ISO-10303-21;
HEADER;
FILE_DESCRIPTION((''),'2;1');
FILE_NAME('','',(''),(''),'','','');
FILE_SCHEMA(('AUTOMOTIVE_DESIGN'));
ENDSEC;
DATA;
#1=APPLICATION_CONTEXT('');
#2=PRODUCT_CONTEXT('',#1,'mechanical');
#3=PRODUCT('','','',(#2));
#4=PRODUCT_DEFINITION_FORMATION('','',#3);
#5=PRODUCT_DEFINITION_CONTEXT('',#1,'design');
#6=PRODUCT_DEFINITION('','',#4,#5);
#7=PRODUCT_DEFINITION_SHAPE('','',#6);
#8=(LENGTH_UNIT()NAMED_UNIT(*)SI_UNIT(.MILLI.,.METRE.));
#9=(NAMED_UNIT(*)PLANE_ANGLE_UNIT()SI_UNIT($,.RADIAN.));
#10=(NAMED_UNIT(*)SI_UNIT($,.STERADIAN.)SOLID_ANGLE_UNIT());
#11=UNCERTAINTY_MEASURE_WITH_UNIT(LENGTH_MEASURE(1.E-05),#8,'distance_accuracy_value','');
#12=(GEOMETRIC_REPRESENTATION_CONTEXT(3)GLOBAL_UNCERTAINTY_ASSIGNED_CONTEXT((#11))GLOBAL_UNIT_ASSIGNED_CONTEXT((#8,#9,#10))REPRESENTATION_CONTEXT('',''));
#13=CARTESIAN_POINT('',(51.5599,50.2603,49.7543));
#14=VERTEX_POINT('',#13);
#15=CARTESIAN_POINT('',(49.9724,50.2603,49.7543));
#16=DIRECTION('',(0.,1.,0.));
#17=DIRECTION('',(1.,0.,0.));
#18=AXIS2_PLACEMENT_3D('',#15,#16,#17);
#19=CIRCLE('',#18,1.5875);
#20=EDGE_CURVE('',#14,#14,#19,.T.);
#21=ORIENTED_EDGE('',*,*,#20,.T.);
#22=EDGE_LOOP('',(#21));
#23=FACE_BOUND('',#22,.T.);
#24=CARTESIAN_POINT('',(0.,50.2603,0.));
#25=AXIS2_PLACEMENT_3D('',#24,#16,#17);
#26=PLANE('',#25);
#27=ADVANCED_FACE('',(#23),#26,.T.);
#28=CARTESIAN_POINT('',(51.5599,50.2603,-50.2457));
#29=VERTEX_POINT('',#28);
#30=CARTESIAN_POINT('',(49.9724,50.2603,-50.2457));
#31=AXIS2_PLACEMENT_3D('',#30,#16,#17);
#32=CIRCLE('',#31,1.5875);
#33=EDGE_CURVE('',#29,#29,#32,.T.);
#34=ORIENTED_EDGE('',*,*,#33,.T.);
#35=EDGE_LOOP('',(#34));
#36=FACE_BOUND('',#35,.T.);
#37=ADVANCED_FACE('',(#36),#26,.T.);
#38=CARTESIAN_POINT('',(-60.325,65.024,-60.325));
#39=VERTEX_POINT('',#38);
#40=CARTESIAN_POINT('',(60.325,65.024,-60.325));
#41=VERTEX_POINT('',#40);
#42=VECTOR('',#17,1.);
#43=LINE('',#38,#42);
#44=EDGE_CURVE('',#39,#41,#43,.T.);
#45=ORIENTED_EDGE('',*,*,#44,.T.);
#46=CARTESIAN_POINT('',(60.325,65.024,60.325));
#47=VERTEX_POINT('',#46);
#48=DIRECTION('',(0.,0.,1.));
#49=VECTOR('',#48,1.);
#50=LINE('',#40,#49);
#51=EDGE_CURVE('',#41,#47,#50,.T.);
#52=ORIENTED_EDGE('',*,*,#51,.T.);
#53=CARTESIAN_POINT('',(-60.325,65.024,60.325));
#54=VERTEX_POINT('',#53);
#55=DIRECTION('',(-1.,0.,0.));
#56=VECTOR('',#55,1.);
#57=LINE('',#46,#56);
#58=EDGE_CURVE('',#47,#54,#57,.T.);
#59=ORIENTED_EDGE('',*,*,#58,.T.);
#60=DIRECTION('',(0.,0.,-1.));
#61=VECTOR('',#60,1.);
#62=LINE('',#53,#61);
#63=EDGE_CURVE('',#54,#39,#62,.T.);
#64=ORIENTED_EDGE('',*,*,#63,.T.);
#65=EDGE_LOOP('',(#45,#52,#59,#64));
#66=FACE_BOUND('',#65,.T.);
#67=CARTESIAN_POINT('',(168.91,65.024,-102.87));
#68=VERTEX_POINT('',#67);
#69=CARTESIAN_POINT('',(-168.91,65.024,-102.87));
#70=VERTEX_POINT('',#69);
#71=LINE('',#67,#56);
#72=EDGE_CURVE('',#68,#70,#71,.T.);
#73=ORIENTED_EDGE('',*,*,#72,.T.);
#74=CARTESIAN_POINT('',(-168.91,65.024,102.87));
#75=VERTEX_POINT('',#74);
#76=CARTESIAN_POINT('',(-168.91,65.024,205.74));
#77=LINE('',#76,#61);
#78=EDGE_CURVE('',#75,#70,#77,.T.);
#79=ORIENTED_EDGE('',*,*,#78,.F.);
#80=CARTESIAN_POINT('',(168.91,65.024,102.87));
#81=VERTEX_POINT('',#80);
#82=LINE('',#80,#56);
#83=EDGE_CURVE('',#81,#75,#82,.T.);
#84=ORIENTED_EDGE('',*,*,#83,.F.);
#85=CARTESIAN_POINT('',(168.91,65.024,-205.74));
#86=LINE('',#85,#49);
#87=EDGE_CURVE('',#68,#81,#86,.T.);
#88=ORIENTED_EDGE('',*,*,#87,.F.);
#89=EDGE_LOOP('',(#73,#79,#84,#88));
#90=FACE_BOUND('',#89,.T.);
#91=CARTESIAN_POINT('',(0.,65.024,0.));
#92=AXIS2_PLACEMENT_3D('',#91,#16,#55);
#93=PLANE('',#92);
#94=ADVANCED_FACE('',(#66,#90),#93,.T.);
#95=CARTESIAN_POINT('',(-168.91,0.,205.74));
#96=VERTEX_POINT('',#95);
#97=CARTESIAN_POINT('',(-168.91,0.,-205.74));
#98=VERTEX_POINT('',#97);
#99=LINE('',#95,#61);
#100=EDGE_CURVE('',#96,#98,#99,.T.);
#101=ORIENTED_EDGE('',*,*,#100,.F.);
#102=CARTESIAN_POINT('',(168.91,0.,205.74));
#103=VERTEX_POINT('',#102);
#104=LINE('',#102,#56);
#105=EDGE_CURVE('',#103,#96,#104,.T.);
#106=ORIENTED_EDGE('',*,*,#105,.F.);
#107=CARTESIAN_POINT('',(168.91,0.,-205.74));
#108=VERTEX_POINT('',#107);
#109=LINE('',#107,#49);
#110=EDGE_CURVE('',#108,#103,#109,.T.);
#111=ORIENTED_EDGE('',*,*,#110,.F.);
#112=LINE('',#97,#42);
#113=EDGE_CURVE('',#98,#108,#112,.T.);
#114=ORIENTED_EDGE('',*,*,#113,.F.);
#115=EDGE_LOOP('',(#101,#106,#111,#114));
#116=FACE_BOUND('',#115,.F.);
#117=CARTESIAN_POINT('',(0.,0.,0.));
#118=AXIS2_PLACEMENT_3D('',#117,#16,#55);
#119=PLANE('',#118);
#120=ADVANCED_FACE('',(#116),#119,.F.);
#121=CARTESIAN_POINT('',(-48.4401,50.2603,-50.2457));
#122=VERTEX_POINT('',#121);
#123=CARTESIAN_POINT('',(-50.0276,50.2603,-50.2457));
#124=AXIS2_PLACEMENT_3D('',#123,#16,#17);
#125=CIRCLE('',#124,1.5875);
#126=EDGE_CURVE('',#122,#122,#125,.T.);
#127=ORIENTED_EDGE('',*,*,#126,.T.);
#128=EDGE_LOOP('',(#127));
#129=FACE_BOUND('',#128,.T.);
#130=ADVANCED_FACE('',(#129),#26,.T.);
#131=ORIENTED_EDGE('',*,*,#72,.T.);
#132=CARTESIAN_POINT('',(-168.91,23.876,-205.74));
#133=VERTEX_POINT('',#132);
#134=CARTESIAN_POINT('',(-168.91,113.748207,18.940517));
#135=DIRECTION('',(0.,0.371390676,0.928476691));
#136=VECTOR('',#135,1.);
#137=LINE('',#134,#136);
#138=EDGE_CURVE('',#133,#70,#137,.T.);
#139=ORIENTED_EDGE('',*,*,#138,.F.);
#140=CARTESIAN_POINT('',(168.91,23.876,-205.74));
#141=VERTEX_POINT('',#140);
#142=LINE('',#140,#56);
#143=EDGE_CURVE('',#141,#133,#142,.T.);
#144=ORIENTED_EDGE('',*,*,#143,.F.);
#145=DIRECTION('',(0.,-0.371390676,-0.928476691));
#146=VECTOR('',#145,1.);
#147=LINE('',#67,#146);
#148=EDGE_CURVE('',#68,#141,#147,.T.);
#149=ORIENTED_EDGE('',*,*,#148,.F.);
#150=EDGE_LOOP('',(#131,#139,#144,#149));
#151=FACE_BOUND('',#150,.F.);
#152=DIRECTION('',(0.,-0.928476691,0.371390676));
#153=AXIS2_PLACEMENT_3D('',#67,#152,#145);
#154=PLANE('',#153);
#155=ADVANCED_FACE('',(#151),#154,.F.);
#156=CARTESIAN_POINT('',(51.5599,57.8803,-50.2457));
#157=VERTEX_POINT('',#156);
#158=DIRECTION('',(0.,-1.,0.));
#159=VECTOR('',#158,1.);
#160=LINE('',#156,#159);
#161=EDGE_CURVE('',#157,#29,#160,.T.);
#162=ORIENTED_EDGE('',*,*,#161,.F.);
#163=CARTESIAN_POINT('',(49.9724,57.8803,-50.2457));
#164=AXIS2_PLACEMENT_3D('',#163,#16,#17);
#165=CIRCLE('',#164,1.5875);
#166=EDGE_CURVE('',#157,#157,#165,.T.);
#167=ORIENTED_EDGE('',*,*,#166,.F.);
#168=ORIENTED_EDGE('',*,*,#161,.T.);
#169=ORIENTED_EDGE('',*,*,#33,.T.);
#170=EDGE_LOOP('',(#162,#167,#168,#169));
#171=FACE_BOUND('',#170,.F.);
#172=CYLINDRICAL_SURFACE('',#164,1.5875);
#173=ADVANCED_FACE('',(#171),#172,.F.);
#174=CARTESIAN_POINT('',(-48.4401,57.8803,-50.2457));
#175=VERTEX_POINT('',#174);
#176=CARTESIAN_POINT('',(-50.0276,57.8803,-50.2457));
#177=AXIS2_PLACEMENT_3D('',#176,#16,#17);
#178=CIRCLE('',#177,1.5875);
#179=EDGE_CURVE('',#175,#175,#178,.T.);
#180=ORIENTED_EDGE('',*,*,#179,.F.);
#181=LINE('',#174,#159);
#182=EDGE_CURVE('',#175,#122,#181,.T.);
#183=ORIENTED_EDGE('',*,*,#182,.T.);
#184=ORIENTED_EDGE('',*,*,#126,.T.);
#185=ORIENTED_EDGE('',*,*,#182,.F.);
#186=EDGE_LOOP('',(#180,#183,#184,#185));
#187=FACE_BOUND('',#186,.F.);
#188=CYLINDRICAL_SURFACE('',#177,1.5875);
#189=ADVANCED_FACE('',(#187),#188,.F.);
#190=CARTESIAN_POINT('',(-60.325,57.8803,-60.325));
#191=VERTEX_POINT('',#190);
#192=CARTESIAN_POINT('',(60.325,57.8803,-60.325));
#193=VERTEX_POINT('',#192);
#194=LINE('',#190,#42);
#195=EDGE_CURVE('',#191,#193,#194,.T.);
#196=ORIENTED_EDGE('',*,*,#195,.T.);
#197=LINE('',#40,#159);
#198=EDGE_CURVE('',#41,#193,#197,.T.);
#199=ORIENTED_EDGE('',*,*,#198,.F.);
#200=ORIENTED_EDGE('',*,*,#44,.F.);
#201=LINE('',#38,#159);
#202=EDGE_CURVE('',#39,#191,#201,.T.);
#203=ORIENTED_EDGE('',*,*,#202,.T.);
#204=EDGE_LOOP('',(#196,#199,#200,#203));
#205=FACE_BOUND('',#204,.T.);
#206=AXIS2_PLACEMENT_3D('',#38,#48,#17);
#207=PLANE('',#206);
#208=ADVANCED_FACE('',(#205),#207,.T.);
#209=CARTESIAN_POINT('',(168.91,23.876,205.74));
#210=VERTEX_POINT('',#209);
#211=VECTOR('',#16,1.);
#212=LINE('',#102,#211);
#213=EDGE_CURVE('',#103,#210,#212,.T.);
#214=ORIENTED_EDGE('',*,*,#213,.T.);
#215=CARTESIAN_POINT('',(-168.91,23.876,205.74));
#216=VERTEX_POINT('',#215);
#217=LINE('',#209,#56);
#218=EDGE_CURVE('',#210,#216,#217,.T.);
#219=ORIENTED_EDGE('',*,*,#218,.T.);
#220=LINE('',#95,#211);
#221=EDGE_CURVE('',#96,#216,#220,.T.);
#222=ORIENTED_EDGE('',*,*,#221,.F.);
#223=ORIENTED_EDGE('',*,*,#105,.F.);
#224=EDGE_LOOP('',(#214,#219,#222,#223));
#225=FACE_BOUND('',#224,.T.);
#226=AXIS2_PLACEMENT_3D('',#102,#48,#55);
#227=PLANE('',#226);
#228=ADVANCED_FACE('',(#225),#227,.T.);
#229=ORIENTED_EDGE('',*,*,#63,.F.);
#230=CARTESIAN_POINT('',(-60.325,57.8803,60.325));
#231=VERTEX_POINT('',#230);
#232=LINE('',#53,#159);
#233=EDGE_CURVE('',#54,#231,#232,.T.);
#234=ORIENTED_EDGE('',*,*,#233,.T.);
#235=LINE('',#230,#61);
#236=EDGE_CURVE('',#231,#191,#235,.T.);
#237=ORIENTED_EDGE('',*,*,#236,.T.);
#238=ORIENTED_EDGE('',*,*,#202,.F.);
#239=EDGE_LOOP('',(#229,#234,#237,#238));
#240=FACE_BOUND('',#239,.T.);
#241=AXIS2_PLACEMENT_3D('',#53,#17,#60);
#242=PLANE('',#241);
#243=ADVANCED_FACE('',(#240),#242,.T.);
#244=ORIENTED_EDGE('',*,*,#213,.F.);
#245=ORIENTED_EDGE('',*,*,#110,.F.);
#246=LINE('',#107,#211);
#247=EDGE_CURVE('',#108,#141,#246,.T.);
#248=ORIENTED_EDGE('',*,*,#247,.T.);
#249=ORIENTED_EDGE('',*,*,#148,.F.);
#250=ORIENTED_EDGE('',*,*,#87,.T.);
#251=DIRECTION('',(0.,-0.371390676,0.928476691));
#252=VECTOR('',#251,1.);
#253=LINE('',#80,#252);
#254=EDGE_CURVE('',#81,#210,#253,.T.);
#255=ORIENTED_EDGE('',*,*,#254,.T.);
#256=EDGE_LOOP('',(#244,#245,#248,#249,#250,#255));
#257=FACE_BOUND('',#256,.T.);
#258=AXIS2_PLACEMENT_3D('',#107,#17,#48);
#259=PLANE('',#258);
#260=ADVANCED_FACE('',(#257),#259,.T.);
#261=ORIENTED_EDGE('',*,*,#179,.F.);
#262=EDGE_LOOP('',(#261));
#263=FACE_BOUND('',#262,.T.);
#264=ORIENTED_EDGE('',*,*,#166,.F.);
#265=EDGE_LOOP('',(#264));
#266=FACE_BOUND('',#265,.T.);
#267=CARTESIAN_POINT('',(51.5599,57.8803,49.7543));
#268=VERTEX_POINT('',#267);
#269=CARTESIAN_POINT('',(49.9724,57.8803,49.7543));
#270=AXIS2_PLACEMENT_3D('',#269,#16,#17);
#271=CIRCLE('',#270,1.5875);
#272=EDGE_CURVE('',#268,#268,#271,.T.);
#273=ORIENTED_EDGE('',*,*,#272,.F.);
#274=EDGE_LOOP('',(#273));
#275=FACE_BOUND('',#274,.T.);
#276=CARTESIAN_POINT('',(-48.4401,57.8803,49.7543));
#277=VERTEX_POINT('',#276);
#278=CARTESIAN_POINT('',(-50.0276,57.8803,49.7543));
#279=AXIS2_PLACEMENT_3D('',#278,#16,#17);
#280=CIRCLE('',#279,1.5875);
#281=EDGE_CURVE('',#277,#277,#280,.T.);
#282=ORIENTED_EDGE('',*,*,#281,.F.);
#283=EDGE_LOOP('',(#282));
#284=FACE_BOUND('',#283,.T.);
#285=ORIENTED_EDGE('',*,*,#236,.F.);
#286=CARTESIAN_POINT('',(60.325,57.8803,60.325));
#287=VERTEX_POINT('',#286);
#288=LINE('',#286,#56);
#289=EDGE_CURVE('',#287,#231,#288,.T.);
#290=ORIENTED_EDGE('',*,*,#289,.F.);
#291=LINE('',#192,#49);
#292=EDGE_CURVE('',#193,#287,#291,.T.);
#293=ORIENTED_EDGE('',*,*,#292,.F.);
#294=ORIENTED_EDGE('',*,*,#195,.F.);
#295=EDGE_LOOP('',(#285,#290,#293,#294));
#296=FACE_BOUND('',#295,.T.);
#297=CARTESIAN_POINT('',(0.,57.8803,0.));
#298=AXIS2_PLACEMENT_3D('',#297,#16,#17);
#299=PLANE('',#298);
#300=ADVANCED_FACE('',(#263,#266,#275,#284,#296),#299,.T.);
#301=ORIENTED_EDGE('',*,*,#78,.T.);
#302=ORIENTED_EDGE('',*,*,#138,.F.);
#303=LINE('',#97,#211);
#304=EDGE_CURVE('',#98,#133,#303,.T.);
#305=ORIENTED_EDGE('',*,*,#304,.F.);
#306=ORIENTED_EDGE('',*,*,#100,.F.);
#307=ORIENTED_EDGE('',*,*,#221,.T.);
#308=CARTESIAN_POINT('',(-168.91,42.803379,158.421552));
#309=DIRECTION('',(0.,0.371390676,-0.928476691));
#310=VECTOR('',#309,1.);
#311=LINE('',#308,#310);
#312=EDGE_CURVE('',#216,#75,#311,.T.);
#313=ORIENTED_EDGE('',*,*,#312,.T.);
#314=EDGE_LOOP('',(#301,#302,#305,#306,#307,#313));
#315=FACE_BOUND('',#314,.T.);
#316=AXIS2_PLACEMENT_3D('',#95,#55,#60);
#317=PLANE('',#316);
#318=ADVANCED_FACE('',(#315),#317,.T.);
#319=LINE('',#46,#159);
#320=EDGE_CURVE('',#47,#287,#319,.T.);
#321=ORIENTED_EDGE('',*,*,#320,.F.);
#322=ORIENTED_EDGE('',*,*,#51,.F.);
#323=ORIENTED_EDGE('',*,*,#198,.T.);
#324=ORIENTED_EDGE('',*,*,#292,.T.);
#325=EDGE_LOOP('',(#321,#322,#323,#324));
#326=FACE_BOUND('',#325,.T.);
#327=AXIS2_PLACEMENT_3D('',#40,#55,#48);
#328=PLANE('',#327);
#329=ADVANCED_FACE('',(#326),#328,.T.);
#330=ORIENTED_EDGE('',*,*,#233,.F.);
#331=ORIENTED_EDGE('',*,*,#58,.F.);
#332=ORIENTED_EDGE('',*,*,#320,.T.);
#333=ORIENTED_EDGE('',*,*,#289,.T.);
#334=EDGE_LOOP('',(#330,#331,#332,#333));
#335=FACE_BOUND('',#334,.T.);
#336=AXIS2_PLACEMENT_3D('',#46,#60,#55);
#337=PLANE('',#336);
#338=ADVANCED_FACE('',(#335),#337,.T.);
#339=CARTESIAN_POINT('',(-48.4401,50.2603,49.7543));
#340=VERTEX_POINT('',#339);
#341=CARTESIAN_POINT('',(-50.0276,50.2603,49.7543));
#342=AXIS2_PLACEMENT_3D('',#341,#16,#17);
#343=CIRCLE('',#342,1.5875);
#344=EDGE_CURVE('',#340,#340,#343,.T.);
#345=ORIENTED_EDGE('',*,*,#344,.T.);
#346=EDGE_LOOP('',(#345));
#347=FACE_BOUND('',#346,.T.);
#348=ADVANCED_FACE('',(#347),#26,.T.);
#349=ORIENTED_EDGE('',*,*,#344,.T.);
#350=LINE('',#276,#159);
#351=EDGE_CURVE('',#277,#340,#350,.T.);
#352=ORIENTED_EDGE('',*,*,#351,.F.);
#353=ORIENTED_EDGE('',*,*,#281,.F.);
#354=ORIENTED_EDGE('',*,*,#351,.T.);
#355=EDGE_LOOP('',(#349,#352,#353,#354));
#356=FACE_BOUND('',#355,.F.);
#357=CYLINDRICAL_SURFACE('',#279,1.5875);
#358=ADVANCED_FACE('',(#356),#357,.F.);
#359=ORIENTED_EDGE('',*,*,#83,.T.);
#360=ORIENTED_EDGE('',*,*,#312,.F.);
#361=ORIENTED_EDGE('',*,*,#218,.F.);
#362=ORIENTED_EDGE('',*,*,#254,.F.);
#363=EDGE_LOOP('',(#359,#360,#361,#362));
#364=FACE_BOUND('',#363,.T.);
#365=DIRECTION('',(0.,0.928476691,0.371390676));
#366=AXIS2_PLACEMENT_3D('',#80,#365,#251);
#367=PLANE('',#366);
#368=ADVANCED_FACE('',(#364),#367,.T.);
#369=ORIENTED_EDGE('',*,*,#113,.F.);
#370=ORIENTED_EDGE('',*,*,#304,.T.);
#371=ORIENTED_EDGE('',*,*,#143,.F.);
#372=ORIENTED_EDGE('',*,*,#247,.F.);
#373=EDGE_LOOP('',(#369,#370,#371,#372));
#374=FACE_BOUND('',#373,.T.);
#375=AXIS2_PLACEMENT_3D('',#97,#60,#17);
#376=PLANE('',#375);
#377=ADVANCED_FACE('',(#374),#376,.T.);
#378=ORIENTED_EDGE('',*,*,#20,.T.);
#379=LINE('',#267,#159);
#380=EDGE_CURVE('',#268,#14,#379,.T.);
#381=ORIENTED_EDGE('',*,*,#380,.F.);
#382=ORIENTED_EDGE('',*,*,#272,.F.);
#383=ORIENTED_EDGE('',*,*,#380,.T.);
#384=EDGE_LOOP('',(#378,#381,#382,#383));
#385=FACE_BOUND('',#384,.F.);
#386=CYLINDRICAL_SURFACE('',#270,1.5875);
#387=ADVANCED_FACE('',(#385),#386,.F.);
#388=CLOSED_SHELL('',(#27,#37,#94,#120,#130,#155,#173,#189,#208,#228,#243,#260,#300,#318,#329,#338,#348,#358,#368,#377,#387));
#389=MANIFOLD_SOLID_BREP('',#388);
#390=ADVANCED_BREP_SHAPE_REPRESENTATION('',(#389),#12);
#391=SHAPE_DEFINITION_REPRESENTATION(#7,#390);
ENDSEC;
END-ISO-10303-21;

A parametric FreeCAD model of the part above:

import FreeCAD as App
import Part
import Sketcher

V = App.Vector
Q = App.Units.Quantity

doc = App.newDocument("Part")
body = doc.addObject("PartDesign::Body", "Body")

# Sketch on XZ plane
sketch1 = body.newObject("Sketcher::SketchObject", "Sketch")
sketch1.AttachmentSupport = (doc.getObject("XZ_Plane"), [""])
sketch1.MapMode = "FlatFace"
sketch1.addGeometry(Part.LineSegment(V(-168.91, 205.74, 0), V(168.91, 205.74, 0)), False)
sketch1.addGeometry(Part.LineSegment(V(168.91, 205.74, 0), V(168.91, -205.74, 0)), False)
sketch1.addGeometry(Part.LineSegment(V(168.91, -205.74, 0), V(-168.91, -205.74, 0)), False)
sketch1.addGeometry(Part.LineSegment(V(-168.91, -205.74, 0), V(-168.91, 205.74, 0)), False)
sketch1.addConstraint(Sketcher.Constraint("Coincident", 0, 2, 1, 1))
sketch1.addConstraint(Sketcher.Constraint("Coincident", 1, 2, 2, 1))
sketch1.addConstraint(Sketcher.Constraint("Coincident", 2, 2, 3, 1))
sketch1.addConstraint(Sketcher.Constraint("Coincident", 3, 2, 0, 1))
sketch1.addConstraint(Sketcher.Constraint("Horizontal", 0))
sketch1.addConstraint(Sketcher.Constraint("Vertical", 1))
sketch1.addConstraint(Sketcher.Constraint("Horizontal", 2))
sketch1.addConstraint(Sketcher.Constraint("Vertical", 3))
sketch1.addConstraint(Sketcher.Constraint("Symmetric", 0, 2, 2, 2, -1, 1))
sketch1.addConstraint(Sketcher.Constraint("DistanceX", 0, 1, 0, 2, Q("13.3 in")))
sketch1.addConstraint(Sketcher.Constraint("DistanceY", 1, 2, 1, 1, Q("16.2 in")))
pad1 = body.newObject("PartDesign::Pad", "Pad")
pad1.Profile = sketch1
pad1.Length = Q("2.56 in")
pad1.Reversed = True

# Sketch on YZ plane
sketch2 = body.newObject("Sketcher::SketchObject", "Sketch001")
sketch2.AttachmentSupport = (doc.getObject("YZ_Plane"), [""])
sketch2.MapMode = "FlatFace"
sketch2.AttachmentOffset = App.Placement(V(0, 0, 6.65 * 25.4), App.Rotation())
sketch2.addGeometry(Part.LineSegment(V(65.024, -205.74, 0), V(65.024, -102.87, 0)), False)
sketch2.addGeometry(Part.LineSegment(V(65.024, -102.87, 0), V(23.876, -205.74, 0)), False)
sketch2.addGeometry(Part.LineSegment(V(23.876, -205.74, 0), V(65.024, -205.74, 0)), False)
sketch2.addGeometry(Part.LineSegment(V(23.876, 205.74, 0), V(65.024, 102.87, 0)), False)
sketch2.addGeometry(Part.LineSegment(V(65.024, 102.87, 0), V(65.024, 205.74, 0)), False)
sketch2.addGeometry(Part.LineSegment(V(65.024, 205.74, 0), V(23.876, 205.74, 0)), False)
sketch2.addConstraint(Sketcher.Constraint("Coincident", 0, 2, 1, 1))
sketch2.addConstraint(Sketcher.Constraint("Coincident", 1, 2, 2, 1))
sketch2.addConstraint(Sketcher.Constraint("Coincident", 2, 2, 0, 1))
sketch2.addConstraint(Sketcher.Constraint("Coincident", 3, 2, 4, 1))
sketch2.addConstraint(Sketcher.Constraint("Coincident", 4, 2, 5, 1))
sketch2.addConstraint(Sketcher.Constraint("Coincident", 5, 2, 3, 1))
sketch2.addConstraint(Sketcher.Constraint("Vertical", 0))
sketch2.addConstraint(Sketcher.Constraint("Horizontal", 2))
sketch2.addConstraint(Sketcher.Constraint("Vertical", 4))
sketch2.addConstraint(Sketcher.Constraint("Horizontal", 5))
sketch2.addConstraint(Sketcher.Constraint("Symmetric", 0, 2, 3, 2, -1))
sketch2.addConstraint(Sketcher.Constraint("Symmetric", 1, 2, 5, 2, -1))
sketch2.addConstraint(Sketcher.Constraint("DistanceY", 1, 2, -1, 1, Q("8.1 in")))
sketch2.addConstraint(Sketcher.Constraint("DistanceY", 0, 2, 3, 2, Q("8.1 in")))
sketch2.addConstraint(Sketcher.Constraint("DistanceX", -1, 1, 1, 2, Q("0.94 in")))
sketch2.addConstraint(Sketcher.Constraint("DistanceX", 2, 1, 2, 2, Q("1.62 in")))
pocket1 = body.newObject("PartDesign::Pocket", "Pocket")
pocket1.Profile = sketch2
pocket1.Length = Q("15.2475 in")

# Sketch on XZ plane
sketch3 = body.newObject("Sketcher::SketchObject", "Sketch002")
sketch3.AttachmentSupport = (doc.getObject("XZ_Plane"), [""])
sketch3.MapMode = "FlatFace"
sketch3.AttachmentOffset = App.Placement(V(0, 0, -2.56 * 25.4), App.Rotation())
sketch3.addGeometry(Part.LineSegment(V(-60.325, 60.325, 0), V(60.325, 60.325, 0)), False)
sketch3.addGeometry(Part.LineSegment(V(60.325, 60.325, 0), V(60.325, -60.325, 0)), False)
sketch3.addGeometry(Part.LineSegment(V(60.325, -60.325, 0), V(-60.325, -60.325, 0)), False)
sketch3.addGeometry(Part.LineSegment(V(-60.325, -60.325, 0), V(-60.325, 60.325, 0)), False)
sketch3.addConstraint(Sketcher.Constraint("Coincident", 0, 2, 1, 1))
sketch3.addConstraint(Sketcher.Constraint("Coincident", 1, 2, 2, 1))
sketch3.addConstraint(Sketcher.Constraint("Coincident", 2, 2, 3, 1))
sketch3.addConstraint(Sketcher.Constraint("Coincident", 3, 2, 0, 1))
sketch3.addConstraint(Sketcher.Constraint("Horizontal", 0))
sketch3.addConstraint(Sketcher.Constraint("Vertical", 1))
sketch3.addConstraint(Sketcher.Constraint("Horizontal", 2))
sketch3.addConstraint(Sketcher.Constraint("Vertical", 3))
sketch3.addConstraint(Sketcher.Constraint("Symmetric", 0, 2, 2, 2, -1, 1))
sketch3.addConstraint(Sketcher.Constraint("Equal", 2, 1))
sketch3.addConstraint(Sketcher.Constraint("DistanceX", 0, 1, 0, 2, Q("4.75 in")))
pocket2 = body.newObject("PartDesign::Pocket", "Pocket001")
pocket2.Profile = sketch3
pocket2.Length = Q("0.281248 in")
pocket2.Reversed = True

# Sketch on XZ plane
sketch4 = body.newObject("Sketcher::SketchObject", "Sketch003")
sketch4.AttachmentSupport = (doc.getObject("XZ_Plane"), [""])
sketch4.MapMode = "FlatFace"
sketch4.AttachmentOffset = App.Placement(V(0, 0, -57.8803), App.Rotation())
sketch4.addGeometry(Part.Circle(V(-50.0276, -50.2457, 0), V(0, 0, 1), 1.5875), False)
sketch4.addGeometry(Part.Circle(V(49.9724, -50.2457, 0), V(0, 0, 1), 1.5875), False)
sketch4.addGeometry(Part.Circle(V(49.9724, 49.7543, 0), V(0, 0, 1), 1.5875), False)
sketch4.addGeometry(Part.Circle(V(-50.0276, 49.7543, 0), V(0, 0, 1), 1.5875), False)
sketch4.addConstraint(Sketcher.Constraint("Equal", 0, 1))
sketch4.addConstraint(Sketcher.Constraint("Equal", 1, 2))
sketch4.addConstraint(Sketcher.Constraint("Equal", 2, 3))
sketch4.addConstraint(Sketcher.Constraint("Horizontal", 0, 3, 1, 3))
sketch4.addConstraint(Sketcher.Constraint("Horizontal", 2, 3, 3, 3))
sketch4.addConstraint(Sketcher.Constraint("Vertical", 1, 3, 2, 3))
sketch4.addConstraint(Sketcher.Constraint("Vertical", 0, 3, 3, 3))
sketch4.addConstraint(Sketcher.Constraint("Diameter", 0, Q("0.125 in")))
sketch4.addConstraint(Sketcher.Constraint("DistanceX", 0, 3, 1, 3, Q("3.937 in")))
sketch4.addConstraint(Sketcher.Constraint("DistanceY", 1, 3, 2, 3, Q("3.937 in")))
sketch4.addConstraint(Sketcher.Constraint("DistanceX", 0, 3, -1, 1, Q("1.9696 in")))
sketch4.addConstraint(Sketcher.Constraint("DistanceY", 0, 3, -1, 1, Q("50.2457 mm")))
pocket3 = body.newObject("PartDesign::Pocket", "Pocket002")
pocket3.Profile = sketch4
pocket3.Length = Q("0.3 in")
pocket3.Reversed = True

doc.recompute()
